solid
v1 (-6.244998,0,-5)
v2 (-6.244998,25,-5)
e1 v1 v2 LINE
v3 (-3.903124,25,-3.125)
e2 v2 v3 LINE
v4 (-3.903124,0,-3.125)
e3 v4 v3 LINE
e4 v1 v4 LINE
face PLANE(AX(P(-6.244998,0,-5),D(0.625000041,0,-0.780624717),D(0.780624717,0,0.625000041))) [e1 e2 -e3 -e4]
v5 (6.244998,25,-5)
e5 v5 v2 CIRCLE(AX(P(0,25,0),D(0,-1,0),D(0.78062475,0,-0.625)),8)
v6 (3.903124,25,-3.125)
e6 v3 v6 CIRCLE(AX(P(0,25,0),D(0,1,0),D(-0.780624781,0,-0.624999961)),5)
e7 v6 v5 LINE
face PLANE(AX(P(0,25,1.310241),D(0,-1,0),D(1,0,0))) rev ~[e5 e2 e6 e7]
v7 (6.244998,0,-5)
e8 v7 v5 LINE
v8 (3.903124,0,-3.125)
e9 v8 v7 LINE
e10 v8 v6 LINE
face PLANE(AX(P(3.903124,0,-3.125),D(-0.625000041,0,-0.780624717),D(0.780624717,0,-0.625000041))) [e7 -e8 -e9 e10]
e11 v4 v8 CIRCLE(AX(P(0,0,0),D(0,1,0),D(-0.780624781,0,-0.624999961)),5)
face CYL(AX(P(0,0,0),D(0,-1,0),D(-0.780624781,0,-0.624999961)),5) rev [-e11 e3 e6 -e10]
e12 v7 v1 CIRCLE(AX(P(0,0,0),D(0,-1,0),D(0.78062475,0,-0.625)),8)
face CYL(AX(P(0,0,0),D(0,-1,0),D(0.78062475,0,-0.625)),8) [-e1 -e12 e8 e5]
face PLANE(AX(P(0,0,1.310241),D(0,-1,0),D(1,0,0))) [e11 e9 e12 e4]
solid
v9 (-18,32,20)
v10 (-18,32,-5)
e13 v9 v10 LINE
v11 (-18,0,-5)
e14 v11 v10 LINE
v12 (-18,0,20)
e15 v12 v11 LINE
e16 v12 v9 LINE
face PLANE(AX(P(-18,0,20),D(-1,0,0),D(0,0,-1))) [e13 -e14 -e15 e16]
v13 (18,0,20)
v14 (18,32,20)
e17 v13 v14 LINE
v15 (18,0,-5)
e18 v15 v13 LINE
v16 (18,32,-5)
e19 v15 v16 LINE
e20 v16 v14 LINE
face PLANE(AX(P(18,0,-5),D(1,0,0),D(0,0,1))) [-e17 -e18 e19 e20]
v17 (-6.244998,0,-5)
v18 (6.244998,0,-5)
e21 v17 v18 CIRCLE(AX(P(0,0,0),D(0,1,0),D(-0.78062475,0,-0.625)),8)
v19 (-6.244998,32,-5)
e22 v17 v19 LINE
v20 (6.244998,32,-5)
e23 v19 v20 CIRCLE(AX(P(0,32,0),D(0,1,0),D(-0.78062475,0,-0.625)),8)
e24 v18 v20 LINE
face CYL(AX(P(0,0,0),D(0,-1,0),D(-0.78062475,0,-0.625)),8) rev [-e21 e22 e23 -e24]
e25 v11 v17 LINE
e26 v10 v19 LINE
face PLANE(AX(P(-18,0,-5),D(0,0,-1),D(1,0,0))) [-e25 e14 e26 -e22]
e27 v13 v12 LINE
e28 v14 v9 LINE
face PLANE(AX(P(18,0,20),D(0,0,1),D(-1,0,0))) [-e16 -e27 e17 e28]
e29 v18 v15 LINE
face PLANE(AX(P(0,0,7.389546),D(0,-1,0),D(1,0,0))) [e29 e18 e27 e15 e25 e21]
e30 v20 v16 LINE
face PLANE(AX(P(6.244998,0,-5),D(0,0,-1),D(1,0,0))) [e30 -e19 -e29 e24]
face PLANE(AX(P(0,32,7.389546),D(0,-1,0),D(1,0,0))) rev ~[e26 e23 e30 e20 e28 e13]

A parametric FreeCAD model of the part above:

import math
import FreeCAD as App
import Part
import Sketcher

V = App.Vector
Q = App.Units.Quantity

doc = App.newDocument("Part")
body = doc.addObject("PartDesign::Body", "Body")

# Sketch on XZ plane
sketch1 = body.newObject("Sketcher::SketchObject", "Sketch")
sketch1.AttachmentSupport = (doc.getObject("XZ_Plane"), [""])
sketch1.MapMode = "FlatFace"
sketch1.addGeometry([
    Part.ArcOfCircle(Part.Circle(V(0, 0, 0), V(0, 0, 1), 8), math.radians(-38.682187), math.radians(218.682187)),  # 0
    Part.LineSegment(V(6.244998, -5, 0), V(18, -5, 0)),  # 1
    Part.LineSegment(V(18, -5, 0), V(18, 20, 0)),  # 2
    Part.LineSegment(V(18, 20, 0), V(-18, 20, 0)),  # 3
    Part.LineSegment(V(-18, 20, 0), V(-18, -5, 0)),  # 4
    Part.LineSegment(V(-18, -5, 0), V(-6.244998, -5, 0)),  # 5
], False)
sketch1.addConstraint([
    Sketcher.Constraint("Coincident", 0, 1, 1, 1),
    Sketcher.Constraint("Coincident", 1, 2, 2, 1),
    Sketcher.Constraint("Coincident", 2, 2, 3, 1),
    Sketcher.Constraint("Coincident", 3, 2, 4, 1),
    Sketcher.Constraint("Coincident", 4, 2, 5, 1),
    Sketcher.Constraint("Coincident", 5, 2, 0, 2),
    Sketcher.Constraint("Horizontal", 1),
    Sketcher.Constraint("Vertical", 2),
    Sketcher.Constraint("Horizontal", 3),
    Sketcher.Constraint("Vertical", 4),
    Sketcher.Constraint("Horizontal", 5),
    Sketcher.Constraint("Coincident", 0, 3, -1, 1),
    Sketcher.Constraint("Symmetric", 1, 2, 4, 2, -2),
    Sketcher.Constraint("Radius", 0, Q("8 mm")),
    Sketcher.Constraint("DistanceX", 3, 2, 3, 1, Q("36 mm")),
    Sketcher.Constraint("DistanceY", 2, 1, 2, 2, Q("25 mm")),
    Sketcher.Constraint("DistanceY", 0, 1, -1, 1, Q("5 mm")),
])
pad1 = body.newObject("PartDesign::Pad", "Pad")
pad1.Profile = sketch1
pad1.Length = 32
pad1.Reversed = True
body2 = doc.addObject("PartDesign::Body", "Body001")

# Sketch on XZ plane
sketch2 = body2.newObject("Sketcher::SketchObject", "Sketch001")
sketch2.AttachmentSupport = (doc.getObject("XZ_Plane001"), [""])
sketch2.MapMode = "FlatFace"
sketch2.addGeometry([
    Part.ArcOfCircle(Part.Circle(V(0, 0, 0), V(0, 0, 1), 5), math.radians(-38.682185), math.radians(218.682185)),
    Part.LineSegment(V(3.903124, -3.125, 0), V(6.244998, -5, 0)),
    Part.ArcOfCircle(Part.Circle(V(0, 0, 0), V(0, 0, 1), 8), math.radians(-38.682187), math.radians(218.682187)),
    Part.LineSegment(V(-6.244998, -5, 0), V(-3.903124, -3.125, 0)),
], False)
sketch2.addConstraint([
    Sketcher.Constraint("Coincident", 0, 1, 1, 1),
    Sketcher.Constraint("Coincident", 1, 2, 2, 1),
    Sketcher.Constraint("Coincident", 2, 2, 3, 1),
    Sketcher.Constraint("Coincident", 3, 2, 0, 2),
    Sketcher.Constraint("Coincident", 0, 3, -1, 1),
    Sketcher.Constraint("Coincident", 2, 3, -1, 1),
    Sketcher.Constraint("Horizontal", 1, 2, 2, 2),
    Sketcher.Constraint("Horizontal", 0, 1, 3, 2),
    Sketcher.Constraint("Radius", 0, Q("5 mm")),
    Sketcher.Constraint("Radius", 2, Q("8 mm")),
    Sketcher.Constraint("DistanceY", 1, 2, -1, 1, Q("5 mm")),
    Sketcher.Constraint("DistanceY", 0, 1, -1, 1, Q("3.125 mm")),
])
pad2 = body2.newObject("PartDesign::Pad", "Pad001")
pad2.Profile = sketch2
pad2.Length = 25
pad2.Reversed = True

doc.recompute()
